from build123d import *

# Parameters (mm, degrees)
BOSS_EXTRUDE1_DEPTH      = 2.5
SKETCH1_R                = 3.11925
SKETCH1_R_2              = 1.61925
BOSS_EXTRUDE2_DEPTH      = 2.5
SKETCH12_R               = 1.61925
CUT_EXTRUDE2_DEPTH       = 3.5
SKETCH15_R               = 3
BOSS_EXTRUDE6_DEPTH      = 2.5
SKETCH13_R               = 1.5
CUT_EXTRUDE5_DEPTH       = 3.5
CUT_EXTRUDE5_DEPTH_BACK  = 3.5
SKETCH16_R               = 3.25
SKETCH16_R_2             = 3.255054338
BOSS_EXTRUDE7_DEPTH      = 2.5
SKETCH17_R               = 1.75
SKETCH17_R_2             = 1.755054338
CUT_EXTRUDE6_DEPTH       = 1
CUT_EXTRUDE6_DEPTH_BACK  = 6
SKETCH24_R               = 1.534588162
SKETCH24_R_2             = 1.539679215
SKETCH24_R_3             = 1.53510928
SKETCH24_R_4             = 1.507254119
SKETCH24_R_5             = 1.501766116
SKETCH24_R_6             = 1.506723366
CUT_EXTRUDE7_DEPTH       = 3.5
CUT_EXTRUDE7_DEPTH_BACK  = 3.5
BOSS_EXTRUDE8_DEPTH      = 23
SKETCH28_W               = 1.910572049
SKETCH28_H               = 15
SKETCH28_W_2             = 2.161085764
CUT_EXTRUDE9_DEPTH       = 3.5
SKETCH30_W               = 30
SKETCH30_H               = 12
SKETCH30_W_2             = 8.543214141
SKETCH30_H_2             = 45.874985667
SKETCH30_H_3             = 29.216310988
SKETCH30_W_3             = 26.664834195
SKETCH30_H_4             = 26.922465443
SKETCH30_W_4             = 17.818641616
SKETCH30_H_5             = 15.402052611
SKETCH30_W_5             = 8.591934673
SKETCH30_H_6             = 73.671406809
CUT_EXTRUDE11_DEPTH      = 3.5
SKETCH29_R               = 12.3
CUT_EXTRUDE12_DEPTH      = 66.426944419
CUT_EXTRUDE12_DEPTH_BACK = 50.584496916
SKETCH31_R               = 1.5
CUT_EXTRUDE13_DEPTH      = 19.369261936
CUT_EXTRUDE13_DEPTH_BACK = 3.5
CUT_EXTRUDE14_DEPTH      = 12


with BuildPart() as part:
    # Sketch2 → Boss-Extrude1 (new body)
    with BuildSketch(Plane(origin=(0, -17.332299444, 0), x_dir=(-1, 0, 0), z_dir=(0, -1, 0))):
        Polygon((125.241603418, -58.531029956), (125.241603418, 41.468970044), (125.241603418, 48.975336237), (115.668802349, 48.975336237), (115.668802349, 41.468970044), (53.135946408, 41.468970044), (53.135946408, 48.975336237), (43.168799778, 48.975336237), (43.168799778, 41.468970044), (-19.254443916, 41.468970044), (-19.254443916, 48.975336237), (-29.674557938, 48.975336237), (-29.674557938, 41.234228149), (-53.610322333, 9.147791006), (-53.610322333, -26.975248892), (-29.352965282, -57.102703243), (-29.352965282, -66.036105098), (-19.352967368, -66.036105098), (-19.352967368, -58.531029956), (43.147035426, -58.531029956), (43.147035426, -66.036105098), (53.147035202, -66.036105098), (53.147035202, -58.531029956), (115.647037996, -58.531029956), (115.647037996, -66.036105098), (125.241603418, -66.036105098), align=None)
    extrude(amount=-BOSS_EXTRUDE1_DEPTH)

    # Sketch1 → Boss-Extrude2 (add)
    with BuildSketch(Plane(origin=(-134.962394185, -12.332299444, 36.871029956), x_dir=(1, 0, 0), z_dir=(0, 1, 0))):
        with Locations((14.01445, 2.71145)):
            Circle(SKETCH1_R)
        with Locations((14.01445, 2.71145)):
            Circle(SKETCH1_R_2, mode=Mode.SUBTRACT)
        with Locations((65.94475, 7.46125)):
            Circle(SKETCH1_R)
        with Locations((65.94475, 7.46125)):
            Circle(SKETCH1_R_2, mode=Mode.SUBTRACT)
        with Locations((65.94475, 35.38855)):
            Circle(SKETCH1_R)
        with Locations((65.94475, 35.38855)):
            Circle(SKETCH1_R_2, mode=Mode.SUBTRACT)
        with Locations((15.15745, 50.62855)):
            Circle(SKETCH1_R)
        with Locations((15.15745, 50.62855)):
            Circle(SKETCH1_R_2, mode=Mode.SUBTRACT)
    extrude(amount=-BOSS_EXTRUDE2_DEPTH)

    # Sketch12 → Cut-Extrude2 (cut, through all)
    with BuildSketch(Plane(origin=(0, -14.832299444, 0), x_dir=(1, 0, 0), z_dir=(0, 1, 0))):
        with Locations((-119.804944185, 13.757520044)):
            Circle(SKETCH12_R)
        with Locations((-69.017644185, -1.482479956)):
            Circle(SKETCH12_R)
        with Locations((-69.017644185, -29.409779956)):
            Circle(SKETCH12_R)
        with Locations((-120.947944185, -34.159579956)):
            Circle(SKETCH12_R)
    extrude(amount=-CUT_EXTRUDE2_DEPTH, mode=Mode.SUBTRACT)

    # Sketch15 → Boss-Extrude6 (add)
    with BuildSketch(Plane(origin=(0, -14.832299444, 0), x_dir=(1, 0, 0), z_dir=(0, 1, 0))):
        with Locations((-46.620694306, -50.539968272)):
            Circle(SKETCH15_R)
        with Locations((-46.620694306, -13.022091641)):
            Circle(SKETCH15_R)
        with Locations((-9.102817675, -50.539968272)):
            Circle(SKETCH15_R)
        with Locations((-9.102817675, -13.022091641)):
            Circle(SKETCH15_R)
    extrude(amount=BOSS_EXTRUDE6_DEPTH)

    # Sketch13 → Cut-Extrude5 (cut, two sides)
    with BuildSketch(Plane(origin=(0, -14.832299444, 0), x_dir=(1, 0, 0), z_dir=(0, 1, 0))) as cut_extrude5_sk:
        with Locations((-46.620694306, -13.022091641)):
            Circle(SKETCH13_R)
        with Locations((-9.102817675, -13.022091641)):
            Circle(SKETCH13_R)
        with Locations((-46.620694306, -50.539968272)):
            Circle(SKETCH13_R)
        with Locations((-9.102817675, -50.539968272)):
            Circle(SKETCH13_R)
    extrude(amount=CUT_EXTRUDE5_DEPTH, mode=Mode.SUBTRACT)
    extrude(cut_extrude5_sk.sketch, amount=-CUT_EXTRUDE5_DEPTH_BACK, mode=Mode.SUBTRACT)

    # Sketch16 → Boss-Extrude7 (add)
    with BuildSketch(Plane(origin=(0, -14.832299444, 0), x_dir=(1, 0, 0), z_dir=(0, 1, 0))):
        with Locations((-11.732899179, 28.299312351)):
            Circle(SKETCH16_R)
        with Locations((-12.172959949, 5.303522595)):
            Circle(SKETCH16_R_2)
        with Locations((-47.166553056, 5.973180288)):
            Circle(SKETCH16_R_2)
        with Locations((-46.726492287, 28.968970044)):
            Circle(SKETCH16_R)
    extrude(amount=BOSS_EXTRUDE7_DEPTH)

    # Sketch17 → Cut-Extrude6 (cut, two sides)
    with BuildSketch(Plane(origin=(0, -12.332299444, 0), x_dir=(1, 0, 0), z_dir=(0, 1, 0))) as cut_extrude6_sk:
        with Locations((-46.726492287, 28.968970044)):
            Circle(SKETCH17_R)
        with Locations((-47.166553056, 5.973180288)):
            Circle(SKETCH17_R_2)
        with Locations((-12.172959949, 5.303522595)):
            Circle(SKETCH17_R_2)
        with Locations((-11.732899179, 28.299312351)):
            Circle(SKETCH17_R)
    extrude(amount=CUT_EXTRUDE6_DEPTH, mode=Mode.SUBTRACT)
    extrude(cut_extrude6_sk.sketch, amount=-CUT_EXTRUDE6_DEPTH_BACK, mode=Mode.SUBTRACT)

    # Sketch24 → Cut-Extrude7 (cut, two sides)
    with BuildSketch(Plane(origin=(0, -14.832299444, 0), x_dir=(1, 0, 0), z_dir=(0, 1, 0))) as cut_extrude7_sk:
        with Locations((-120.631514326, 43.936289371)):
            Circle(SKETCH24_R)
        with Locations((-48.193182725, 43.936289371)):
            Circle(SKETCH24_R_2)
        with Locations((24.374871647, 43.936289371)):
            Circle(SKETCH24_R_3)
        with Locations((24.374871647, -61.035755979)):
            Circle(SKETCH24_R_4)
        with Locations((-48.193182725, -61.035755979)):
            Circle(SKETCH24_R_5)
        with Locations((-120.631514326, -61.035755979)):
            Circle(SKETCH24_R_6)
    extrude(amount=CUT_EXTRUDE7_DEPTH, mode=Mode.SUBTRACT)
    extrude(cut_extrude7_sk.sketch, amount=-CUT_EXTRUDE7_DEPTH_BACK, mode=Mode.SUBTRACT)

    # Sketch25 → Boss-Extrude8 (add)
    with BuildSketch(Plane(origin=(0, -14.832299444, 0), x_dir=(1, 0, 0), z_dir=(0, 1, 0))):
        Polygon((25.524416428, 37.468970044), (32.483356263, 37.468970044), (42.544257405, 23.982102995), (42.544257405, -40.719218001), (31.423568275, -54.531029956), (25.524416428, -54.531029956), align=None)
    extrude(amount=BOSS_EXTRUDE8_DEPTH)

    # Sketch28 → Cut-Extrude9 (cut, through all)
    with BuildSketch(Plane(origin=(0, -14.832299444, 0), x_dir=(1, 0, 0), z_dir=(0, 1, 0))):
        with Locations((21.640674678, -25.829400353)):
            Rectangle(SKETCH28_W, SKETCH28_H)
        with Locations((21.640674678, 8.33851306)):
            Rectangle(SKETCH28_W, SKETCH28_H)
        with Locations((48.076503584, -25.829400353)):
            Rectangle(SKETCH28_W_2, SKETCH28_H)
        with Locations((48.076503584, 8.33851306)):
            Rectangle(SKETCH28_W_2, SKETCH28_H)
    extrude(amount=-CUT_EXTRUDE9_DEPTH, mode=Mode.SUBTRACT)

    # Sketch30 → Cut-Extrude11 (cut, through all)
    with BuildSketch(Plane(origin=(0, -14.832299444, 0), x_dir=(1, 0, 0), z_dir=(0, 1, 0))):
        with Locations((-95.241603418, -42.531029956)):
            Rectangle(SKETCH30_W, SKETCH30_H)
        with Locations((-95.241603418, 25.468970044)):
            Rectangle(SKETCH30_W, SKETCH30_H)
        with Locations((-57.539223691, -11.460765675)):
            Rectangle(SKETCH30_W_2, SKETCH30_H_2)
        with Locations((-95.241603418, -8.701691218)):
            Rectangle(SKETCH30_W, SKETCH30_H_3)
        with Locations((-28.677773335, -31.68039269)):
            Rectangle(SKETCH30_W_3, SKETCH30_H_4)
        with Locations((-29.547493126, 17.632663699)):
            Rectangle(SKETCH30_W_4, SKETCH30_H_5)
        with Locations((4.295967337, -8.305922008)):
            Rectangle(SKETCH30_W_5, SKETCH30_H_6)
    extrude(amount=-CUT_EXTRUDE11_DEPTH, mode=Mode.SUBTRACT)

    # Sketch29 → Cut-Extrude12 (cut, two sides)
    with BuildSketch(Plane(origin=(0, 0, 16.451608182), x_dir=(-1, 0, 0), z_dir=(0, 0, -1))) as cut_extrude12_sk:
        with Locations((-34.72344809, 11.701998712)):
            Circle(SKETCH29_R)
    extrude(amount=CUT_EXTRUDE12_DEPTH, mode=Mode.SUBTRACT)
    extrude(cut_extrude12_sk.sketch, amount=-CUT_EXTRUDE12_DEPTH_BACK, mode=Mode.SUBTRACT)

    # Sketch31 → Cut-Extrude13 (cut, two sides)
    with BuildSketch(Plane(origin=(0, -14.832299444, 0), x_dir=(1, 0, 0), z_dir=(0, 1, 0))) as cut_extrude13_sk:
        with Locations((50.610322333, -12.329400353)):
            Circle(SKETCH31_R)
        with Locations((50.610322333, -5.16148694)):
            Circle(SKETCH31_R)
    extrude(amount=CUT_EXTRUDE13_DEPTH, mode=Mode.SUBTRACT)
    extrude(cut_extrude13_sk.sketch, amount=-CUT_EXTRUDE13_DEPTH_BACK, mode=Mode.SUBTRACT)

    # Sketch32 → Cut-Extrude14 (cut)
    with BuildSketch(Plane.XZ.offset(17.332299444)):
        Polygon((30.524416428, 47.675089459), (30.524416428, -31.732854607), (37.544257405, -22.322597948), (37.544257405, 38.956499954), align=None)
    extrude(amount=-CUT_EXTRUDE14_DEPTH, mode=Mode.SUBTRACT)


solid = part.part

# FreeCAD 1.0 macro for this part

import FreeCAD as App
import Part
import Sketcher
from FreeCAD import Vector

doc = App.newDocument("Part")
params = doc.addObject("Spreadsheet::Sheet", "Params")
for row, (alias, value) in enumerate([
    ("sketch1_width", "10 mm"),
    ("pad1_length", "2.5 mm"),
    ("pad2_length", "2.5 mm"),
    ("sketch4_diameter", "6 mm"),
    ("pad3_length", "2.5 mm"),
    ("sketch5_diameter", "3 mm"),
    ("sketch6_diameter", "6.5 mm"),
    ("pad4_length", "2.5 mm"),
    ("sketch7_diameter", "3.5 mm"),
    ("sketch9_height", "92 mm"),
    ("pad5_length", "23 mm"),
    ("sketch10_height", "15 mm"),
    ("sketch11_width", "30 mm"),
    ("sketch11_height", "12 mm"),
    ("sketch12_diameter", "24.6 mm"),
    ("sketch13_diameter", "3 mm"),
    ("pocket9_length", "12 mm"),
], start=1):
    params.set(f"A{row}", alias)
    params.set(f"B{row}", "=" + value)
    params.setAlias(f"B{row}", alias)

body = doc.addObject("PartDesign::Body", "Body")

sketch1 = body.newObject("Sketcher::SketchObject", "Sketch")
sketch1.AttachmentSupport = (doc.getObject("XZ_Plane"), [""])
sketch1.MapMode = "FlatFace"
sketch1.AttachmentOffset = App.Placement(Vector(0, 0, 17.332299), App.Rotation())
sketch1.addGeometry([
    Part.LineSegment(Vector(-125.241603, -48.975336, 0), Vector(-115.668802, -48.975336, 0)),
    Part.LineSegment(Vector(-115.668802, -48.975336, 0), Vector(-115.668802, -41.46897, 0)),
    Part.LineSegment(Vector(-115.668802, -41.46897, 0), Vector(-53.135946, -41.46897, 0)),
    Part.LineSegment(Vector(-53.135946, -41.46897, 0), Vector(-53.135946, -48.975336, 0)),
    Part.LineSegment(Vector(-53.135946, -48.975336, 0), Vector(-43.1688, -48.975336, 0)),
    Part.LineSegment(Vector(-43.1688, -48.975336, 0), Vector(-43.1688, -41.46897, 0)),
    Part.LineSegment(Vector(-43.1688, -41.46897, 0), Vector(19.254444, -41.46897, 0)),
    Part.LineSegment(Vector(19.254444, -41.46897, 0), Vector(19.254444, -48.975336, 0)),
    Part.LineSegment(Vector(19.254444, -48.975336, 0), Vector(29.674558, -48.975336, 0)),
    Part.LineSegment(Vector(29.674558, -48.975336, 0), Vector(29.674558, -41.234228, 0)),
    Part.LineSegment(Vector(29.674558, -41.234228, 0), Vector(53.610322, -9.147791, 0)),
    Part.LineSegment(Vector(53.610322, -9.147791, 0), Vector(53.610322, 26.975249, 0)),
    Part.LineSegment(Vector(53.610322, 26.975249, 0), Vector(29.352965, 57.102703, 0)),
    Part.LineSegment(Vector(29.352965, 57.102703, 0), Vector(29.352965, 66.036105, 0)),
    Part.LineSegment(Vector(29.352965, 66.036105, 0), Vector(19.352967, 66.036105, 0)),
    Part.LineSegment(Vector(19.352967, 66.036105, 0), Vector(19.352967, 58.53103, 0)),
    Part.LineSegment(Vector(19.352967, 58.53103, 0), Vector(-43.147035, 58.53103, 0)),
    Part.LineSegment(Vector(-43.147035, 58.53103, 0), Vector(-43.147035, 66.036105, 0)),
    Part.LineSegment(Vector(-43.147035, 66.036105, 0), Vector(-53.147035, 66.036105, 0)),
    Part.LineSegment(Vector(-53.147035, 66.036105, 0), Vector(-53.147035, 58.53103, 0)),
    Part.LineSegment(Vector(-53.147035, 58.53103, 0), Vector(-115.647038, 58.53103, 0)),
    Part.LineSegment(Vector(-115.647038, 58.53103, 0), Vector(-115.647038, 66.036105, 0)),
    Part.LineSegment(Vector(-115.647038, 66.036105, 0), Vector(-125.241603, 66.036105, 0)),
    Part.LineSegment(Vector(-125.241603, 66.036105, 0), Vector(-125.241603, -48.975336, 0)),
], False)
sketch1.addConstraint([
    Sketcher.Constraint("Coincident", 0, 2, 1, 1),
    Sketcher.Constraint("Coincident", 1, 2, 2, 1),
    Sketcher.Constraint("Coincident", 2, 2, 3, 1),
    Sketcher.Constraint("Coincident", 3, 2, 4, 1),
    Sketcher.Constraint("Coincident", 4, 2, 5, 1),
    Sketcher.Constraint("Coincident", 5, 2, 6, 1),
    Sketcher.Constraint("Coincident", 6, 2, 7, 1),
    Sketcher.Constraint("Coincident", 7, 2, 8, 1),
    Sketcher.Constraint("Coincident", 8, 2, 9, 1),
    Sketcher.Constraint("Coincident", 9, 2, 10, 1),
    Sketcher.Constraint("Coincident", 10, 2, 11, 1),
    Sketcher.Constraint("Coincident", 11, 2, 12, 1),
    Sketcher.Constraint("Coincident", 12, 2, 13, 1),
    Sketcher.Constraint("Coincident", 13, 2, 14, 1),
    Sketcher.Constraint("Coincident", 14, 2, 15, 1),
    Sketcher.Constraint("Coincident", 15, 2, 16, 1),
    Sketcher.Constraint("Coincident", 16, 2, 17, 1),
    Sketcher.Constraint("Coincident", 17, 2, 18, 1),
    Sketcher.Constraint("Coincident", 18, 2, 19, 1),
    Sketcher.Constraint("Coincident", 19, 2, 20, 1),
    Sketcher.Constraint("Coincident", 20, 2, 21, 1),
    Sketcher.Constraint("Coincident", 21, 2, 22, 1),
    Sketcher.Constraint("Coincident", 22, 2, 23, 1),
    Sketcher.Constraint("Coincident", 23, 2, 0, 1),
    Sketcher.Constraint("Horizontal", 0),
    Sketcher.Constraint("Vertical", 1),
    Sketcher.Constraint("Horizontal", 2),
    Sketcher.Constraint("Vertical", 3),
    Sketcher.Constraint("Horizontal", 4),
    Sketcher.Constraint("Vertical", 5),
    Sketcher.Constraint("Horizontal", 6),
    Sketcher.Constraint("Vertical", 7),
    Sketcher.Constraint("Horizontal", 8),
    Sketcher.Constraint("Vertical", 9),
    Sketcher.Constraint("Vertical", 11),
    Sketcher.Constraint("Vertical", 13),
    Sketcher.Constraint("Horizontal", 14),
    Sketcher.Constraint("Vertical", 15),
    Sketcher.Constraint("Horizontal", 16),
    Sketcher.Constraint("Vertical", 17),
    Sketcher.Constraint("Horizontal", 18),
    Sketcher.Constraint("Vertical", 19),
    Sketcher.Constraint("Horizontal", 20),
    Sketcher.Constraint("Vertical", 21),
    Sketcher.Constraint("Horizontal", 22),
    Sketcher.Constraint("Vertical", 23),
    Sketcher.Constraint("Horizontal", 0, 2, 3, 2),
    Sketcher.Constraint("Horizontal", 2, 2, 5, 2),
    Sketcher.Constraint("Horizontal", 4, 2, 7, 2),
    Sketcher.Constraint("Horizontal", 14, 2, 17, 2),
    Sketcher.Constraint("Horizontal", 16, 2, 19, 2),
    Sketcher.Constraint("Horizontal", 18, 2, 21, 2),
    Sketcher.Constraint("Equal", 14, 18),
    Sketcher.Constraint("Equal", 16, 20),
    Sketcher.Constraint("DistanceX", 18, 2, 18, 1, 10.0),
    Sketcher.Constraint("DistanceY", 5, 2, 16, 2, 100.0),
    Sketcher.Constraint("DistanceX", 16, 2, 12, 2, 72.500001),
    Sketcher.Constraint("DistanceX", 0, 1, 0, 2, 9.572801),
    Sketcher.Constraint("DistanceY", 13, 1, 13, 2, 8.933402),
    Sketcher.Constraint("DistanceY", 9, 1, 9, 2, 7.741108),
    Sketcher.Constraint("DistanceY", 11, 1, 11, 2, 36.12304),
    Sketcher.Constraint("DistanceY", 23, 2, 23, 1, 115.011441),
    Sketcher.Constraint("DistanceX", 4, 2, -1, 1, 43.1688),
    Sketcher.Constraint("Distance", 10, 40.030742),
    Sketcher.Constraint("Distance", 12, 38.679231),
    Sketcher.Constraint("DistanceX", 2, 1, 2, 2, 62.532856),
    Sketcher.Constraint("DistanceX", 4, 1, 4, 2, 9.967147),
    Sketcher.Constraint("DistanceX", 6, 1, 6, 2, 62.423244),
    Sketcher.Constraint("DistanceX", 8, 1, 8, 2, 10.420114),
    Sketcher.Constraint("DistanceX", 22, 2, 22, 1, 9.594565),
    Sketcher.Constraint("DistanceY", 1, 1, 1, 2, 7.506366),
    Sketcher.Constraint("DistanceY", 1, 2, -1, 1, 41.46897),
])
sketch1.setExpression("Constraints[54]", "Params.sketch1_width")
pad1 = body.newObject("PartDesign::Pad", "Pad")
pad1.Profile = sketch1
pad1.setExpression("Length", "Params.pad1_length")
pad1.Reversed = True

sketch2 = body.newObject("Sketcher::SketchObject", "Sketch001")
sketch2.AttachmentSupport = (doc.getObject("XZ_Plane"), [""])
sketch2.MapMode = "FlatFace"
sketch2.AttachmentOffset = App.Placement(Vector(0, 0, 12.332299), App.Rotation())
sketch2.addGeometry([
    Part.Circle(Vector(-120.947944, 34.15958, 0), Vector(0, 0, 1), 3.11925),
    Part.Circle(Vector(-120.947944, 34.15958, 0), Vector(0, 0, 1), 1.61925),
    Part.Circle(Vector(-69.017644, 29.40978, 0), Vector(0, 0, 1), 3.11925),
    Part.Circle(Vector(-69.017644, 29.40978, 0), Vector(0, 0, 1), 1.61925),
    Part.Circle(Vector(-69.017644, 1.48248, 0), Vector(0, 0, 1), 3.11925),
    Part.Circle(Vector(-69.017644, 1.48248, 0), Vector(0, 0, 1), 1.61925),
    Part.Circle(Vector(-119.804944, -13.75752, 0), Vector(0, 0, 1), 3.11925),
    Part.Circle(Vector(-119.804944, -13.75752, 0), Vector(0, 0, 1), 1.61925),
], False)
sketch2.addConstraint([
    Sketcher.Constraint("Coincident", 1, 3, 0, 3),
    Sketcher.Constraint("Coincident", 3, 3, 2, 3),
    Sketcher.Constraint("Coincident", 5, 3, 4, 3),
    Sketcher.Constraint("Coincident", 7, 3, 6, 3),
    Sketcher.Constraint("Equal", 0, 2),
    Sketcher.Constraint("Equal", 1, 3),
    Sketcher.Constraint("Equal", 2, 4),
    Sketcher.Constraint("Equal", 3, 5),
    Sketcher.Constraint("Equal", 4, 6),
    Sketcher.Constraint("Equal", 5, 7),
    Sketcher.Constraint("Vertical", 3, 3, 4, 3),
    Sketcher.Constraint("Diameter", 0, 6.2385),
    Sketcher.Constraint("Diameter", 1, 3.2385),
    Sketcher.Constraint("DistanceY", 6, 3, 4, 3, 15.24),
    Sketcher.Constraint("DistanceX", 0, 3, 6, 3, 1.143),
    Sketcher.Constraint("DistanceX", 0, 3, 2, 3, 51.9303),
    Sketcher.Constraint("DistanceY", 2, 3, 0, 3, 4.7498),
    Sketcher.Constraint("DistanceY", 4, 3, 2, 3, 27.9273),
    Sketcher.Constraint("DistanceY", -1, 1, 0, 3, 34.15958),
    Sketcher.Constraint("DistanceX", 0, 3, -1, 1, 120.947944),
])
pad2 = body.newObject("PartDesign::Pad", "Pad001")
pad2.Profile = sketch2
pad2.setExpression("Length", "Params.pad2_length")

sketch3 = body.newObject("Sketcher::SketchObject", "Sketch002")
sketch3.AttachmentSupport = (doc.getObject("XZ_Plane"), [""])
sketch3.MapMode = "FlatFace"
sketch3.AttachmentOffset = App.Placement(Vector(0, 0, 14.832299), App.Rotation())
sketch3.addGeometry([
    Part.Circle(Vector(-119.804944, -13.75752, 0), Vector(0, 0, 1), 1.61925),
    Part.Circle(Vector(-69.017644, 1.48248, 0), Vector(0, 0, 1), 1.61925),
    Part.Circle(Vector(-69.017644, 29.40978, 0), Vector(0, 0, 1), 1.61925),
    Part.Circle(Vector(-120.947944, 34.15958, 0), Vector(0, 0, 1), 1.61925),
], False)
sketch3.addConstraint([
    Sketcher.Constraint("Equal", 0, 1),
    Sketcher.Constraint("Equal", 1, 2),
    Sketcher.Constraint("Equal", 2, 3),
    Sketcher.Constraint("Vertical", 1, 3, 2, 3),
    Sketcher.Constraint("Diameter", 0, 3.2385),
    Sketcher.Constraint("DistanceY", 0, 3, 1, 3, 15.24),
    Sketcher.Constraint("DistanceX", 3, 3, 0, 3, 1.143),
    Sketcher.Constraint("DistanceX", 0, 3, 1, 3, 50.7873),
    Sketcher.Constraint("DistanceY", 1, 3, 2, 3, 27.9273),
    Sketcher.Constraint("DistanceY", 0, 3, 3, 3, 47.9171),
    Sketcher.Constraint("DistanceY", 0, 3, -1, 1, 13.75752),
    Sketcher.Constraint("DistanceX", 0, 3, -1, 1, 119.804944),
])
pocket1 = body.newObject("PartDesign::Pocket", "Pocket")
pocket1.Profile = sketch3
pocket1.Type = "ThroughAll"
pocket1.Reversed = True

sketch4 = body.newObject("Sketcher::SketchObject", "Sketch003")
sketch4.AttachmentSupport = (doc.getObject("XZ_Plane"), [""])
sketch4.MapMode = "FlatFace"
sketch4.AttachmentOffset = App.Placement(Vector(0, 0, 14.832299), App.Rotation())
sketch4.addGeometry([
    Part.Circle(Vector(-46.620694, 50.539968, 0), Vector(0, 0, 1), 3),
    Part.Circle(Vector(-46.620694, 13.022092, 0), Vector(0, 0, 1), 3),
    Part.Circle(Vector(-9.102818, 50.539968, 0), Vector(0, 0, 1), 3),
    Part.Circle(Vector(-9.102818, 13.022092, 0), Vector(0, 0, 1), 3),
], False)
sketch4.addConstraint([
    Sketcher.Constraint("Equal", 0, 1),
    Sketcher.Constraint("Equal", 1, 2),
    Sketcher.Constraint("Equal", 2, 3),
    Sketcher.Constraint("Horizontal", 0, 3, 2, 3),
    Sketcher.Constraint("Horizontal", 1, 3, 3, 3),
    Sketcher.Constraint("Vertical", 0, 3, 1, 3),
    Sketcher.Constraint("Vertical", 2, 3, 3, 3),
    Sketcher.Constraint("Diameter", 0, 6.0),
    Sketcher.Constraint("DistanceY", -1, 1, 0, 3, 50.539968),
    Sketcher.Constraint("DistanceY", -1, 1, 1, 3, 13.022092),
    Sketcher.Constraint("DistanceX", 0, 3, -1, 1, 46.620694),
    Sketcher.Constraint("DistanceX", 2, 3, -1, 1, 9.102818),
])
sketch4.setExpression("Constraints[7]", "Params.sketch4_diameter")
pad3 = body.newObject("PartDesign::Pad", "Pad002")
pad3.Profile = sketch4
pad3.setExpression("Length", "Params.pad3_length")
pad3.Reversed = True

sketch5 = body.newObject("Sketcher::SketchObject", "Sketch004")
sketch5.AttachmentSupport = (doc.getObject("XZ_Plane"), [""])
sketch5.MapMode = "FlatFace"
sketch5.AttachmentOffset = App.Placement(Vector(0, 0, 14.832299), App.Rotation())
sketch5.addGeometry([
    Part.Circle(Vector(-46.620694, 13.022092, 0), Vector(0, 0, 1), 1.5),
    Part.Circle(Vector(-9.102818, 13.022092, 0), Vector(0, 0, 1), 1.5),
    Part.Circle(Vector(-46.620694, 50.539968, 0), Vector(0, 0, 1), 1.5),
    Part.Circle(Vector(-9.102818, 50.539968, 0), Vector(0, 0, 1), 1.5),
], False)
sketch5.addConstraint([
    Sketcher.Constraint("Equal", 0, 1),
    Sketcher.Constraint("Equal", 1, 2),
    Sketcher.Constraint("Equal", 2, 3),
    Sketcher.Constraint("Horizontal", 0, 3, 1, 3),
    Sketcher.Constraint("Horizontal", 2, 3, 3, 3),
    Sketcher.Constraint("Vertical", 0, 3, 2, 3),
    Sketcher.Constraint("Vertical", 1, 3, 3, 3),
    Sketcher.Constraint("Diameter", 0, 3.0),
    Sketcher.Constraint("DistanceY", -1, 1, 0, 3, 13.022092),
    Sketcher.Constraint("DistanceY", -1, 1, 2, 3, 50.539968),
    Sketcher.Constraint("DistanceX", 0, 3, -1, 1, 46.620694),
    Sketcher.Constraint("DistanceX", 1, 3, -1, 1, 9.102818),
])
sketch5.setExpression("Constraints[7]", "Params.sketch5_diameter")
pocket2 = body.newObject("PartDesign::Pocket", "Pocket001")
pocket2.Profile = sketch5
pocket2.Type = "ThroughAll"
pocket2.Midplane = True

sketch6 = body.newObject("Sketcher::SketchObject", "Sketch005")
sketch6.AttachmentSupport = (doc.getObject("XZ_Plane"), [""])
sketch6.MapMode = "FlatFace"
sketch6.AttachmentOffset = App.Placement(Vector(0, 0, 14.832299), App.Rotation())
sketch6.addGeometry([
    Part.Circle(Vector(-11.732899, -28.299312, 0), Vector(0, 0, 1), 3.25),
    Part.Circle(Vector(-12.17296, -5.303523, 0), Vector(0, 0, 1), 3.255054),
    Part.Circle(Vector(-47.166553, -5.97318, 0), Vector(0, 0, 1), 3.255054),
    Part.Circle(Vector(-46.726492, -28.96897, 0), Vector(0, 0, 1), 3.25),
], False)
sketch6.addConstraint([
    Sketcher.Constraint("Equal", 1, 2),
    Sketcher.Constraint("Equal", 0, 3),
    Sketcher.Constraint("Diameter", 0, 6.5),
    Sketcher.Constraint("Diameter", 1, 6.510109),
    Sketcher.Constraint("DistanceX", 0, 3, -1, 1, 11.732899),
    Sketcher.Constraint("DistanceX", 1, 3, -1, 1, 12.17296),
    Sketcher.Constraint("DistanceY", 2, 3, -1, 1, 5.97318),
    Sketcher.Constraint("DistanceY", 3, 3, -1, 1, 28.96897),
    Sketcher.Constraint("DistanceY", 0, 3, 1, 3, 22.99579),
    Sketcher.Constraint("DistanceX", 2, 3, 3, 3, 0.440061),
    Sketcher.Constraint("DistanceY", 0, 3, -1, 1, 28.299312),
    Sketcher.Constraint("DistanceX", 2, 3, -1, 1, 47.166553),
])
sketch6.setExpression("Constraints[2]", "Params.sketch6_diameter")
pad4 = body.newObject("PartDesign::Pad", "Pad003")
pad4.Profile = sketch6
pad4.setExpression("Length", "Params.pad4_length")
pad4.Reversed = True

sketch7 = body.newObject("Sketcher::SketchObject", "Sketch006")
sketch7.AttachmentSupport = (doc.getObject("XZ_Plane"), [""])
sketch7.MapMode = "FlatFace"
sketch7.AttachmentOffset = App.Placement(Vector(0, 0, 12.332299), App.Rotation())
sketch7.addGeometry([
    Part.Circle(Vector(-46.726492, -28.96897, 0), Vector(0, 0, 1), 1.75),
    Part.Circle(Vector(-47.166553, -5.97318, 0), Vector(0, 0, 1), 1.755054),
    Part.Circle(Vector(-12.17296, -5.303523, 0), Vector(0, 0, 1), 1.755054),
    Part.Circle(Vector(-11.732899, -28.299312, 0), Vector(0, 0, 1), 1.75),
], False)
sketch7.addConstraint([
    Sketcher.Constraint("Equal", 1, 2),
    Sketcher.Constraint("Equal", 0, 3),
    Sketcher.Constraint("Diameter", 0, 3.5),
    Sketcher.Constraint("Diameter", 1, 3.510109),
    Sketcher.Constraint("DistanceX", 3, 3, -1, 1, 11.732899),
    Sketcher.Constraint("DistanceY", 0, 3, -1, 1, 28.96897),
    Sketcher.Constraint("DistanceY", 1, 3, -1, 1, 5.97318),
    Sketcher.Constraint("DistanceX", 2, 3, -1, 1, 12.17296),
    Sketcher.Constraint("DistanceX", 1, 3, 0, 3, 0.440061),
    Sketcher.Constraint("DistanceY", 3, 3, 2, 3, 22.99579),
    Sketcher.Constraint("DistanceX", 0, 3, -1, 1, 46.726492),
    Sketcher.Constraint("DistanceY", 2, 3, -1, 1, 5.303523),
])
sketch7.setExpression("Constraints[2]", "Params.sketch7_diameter")
pocket3 = body.newObject("PartDesign::Pocket", "Pocket002")
pocket3.Profile = sketch7
pocket3.Type = "ThroughAll"
pocket3.Midplane = True

sketch8 = body.newObject("Sketcher::SketchObject", "Sketch007")
sketch8.AttachmentSupport = (doc.getObject("XZ_Plane"), [""])
sketch8.MapMode = "FlatFace"
sketch8.AttachmentOffset = App.Placement(Vector(0, 0, 14.832299), App.Rotation())
sketch8.addGeometry([
    Part.Circle(Vector(-120.631514, -43.936289, 0), Vector(0, 0, 1), 1.534588),
    Part.Circle(Vector(-48.193183, -43.936289, 0), Vector(0, 0, 1), 1.539679),
    Part.Circle(Vector(24.374872, -43.936289, 0), Vector(0, 0, 1), 1.535109),
    Part.Circle(Vector(24.374872, 61.035756, 0), Vector(0, 0, 1), 1.507254),
    Part.Circle(Vector(-48.193183, 61.035756, 0), Vector(0, 0, 1), 1.501766),
    Part.Circle(Vector(-120.631514, 61.035756, 0), Vector(0, 0, 1), 1.506723),
], False)
sketch8.addConstraint([
    Sketcher.Constraint("Horizontal", 0, 3, 1, 3),
    Sketcher.Constraint("Horizontal", 1, 3, 2, 3),
    Sketcher.Constraint("Horizontal", 3, 3, 4, 3),
    Sketcher.Constraint("Horizontal", 4, 3, 5, 3),
    Sketcher.Constraint("Vertical", 2, 3, 3, 3),
    Sketcher.Constraint("Vertical", 1, 3, 4, 3),
    Sketcher.Constraint("Vertical", 0, 3, 5, 3),
    Sketcher.Constraint("Diameter", 1, 3.079358),
    Sketcher.Constraint("Diameter", 2, 3.070219),
    Sketcher.Constraint("Diameter", 3, 3.014508),
    Sketcher.Constraint("Diameter", 0, 3.069176),
    Sketcher.Constraint("Diameter", 4, 3.003532),
    Sketcher.Constraint("Diameter", 5, 3.013447),
    Sketcher.Constraint("DistanceY", 0, 3, -1, 1, 43.936289),
    Sketcher.Constraint("DistanceX", -1, 1, 2, 3, 24.374872),
    Sketcher.Constraint("DistanceX", 0, 3, 1, 3, 72.438332),
    Sketcher.Constraint("DistanceX", 0, 3, -1, 1, 120.631514),
    Sketcher.Constraint("DistanceY", -1, 1, 3, 3, 61.035756),
])
pocket4 = body.newObject("PartDesign::Pocket", "Pocket003")
pocket4.Profile = sketch8
pocket4.Type = "ThroughAll"
pocket4.Midplane = True

sketch9 = body.newObject("Sketcher::SketchObject", "Sketch008")
sketch9.AttachmentSupport = (doc.getObject("XZ_Plane"), [""])
sketch9.MapMode = "FlatFace"
sketch9.AttachmentOffset = App.Placement(Vector(0, 0, 14.832299), App.Rotation())
sketch9.addGeometry([
    Part.LineSegment(Vector(32.483356, -37.46897, 0), Vector(25.524416, -37.46897, 0)),
    Part.LineSegment(Vector(25.524416, -37.46897, 0), Vector(25.524416, 54.53103, 0)),
    Part.LineSegment(Vector(25.524416, 54.53103, 0), Vector(31.423568, 54.53103, 0)),
    Part.LineSegment(Vector(31.423568, 54.53103, 0), Vector(42.544257, 40.719218, 0)),
    Part.LineSegment(Vector(42.544257, 40.719218, 0), Vector(42.544257, -23.982103, 0)),
    Part.LineSegment(Vector(42.544257, -23.982103, 0), Vector(32.483356, -37.46897, 0)),
], False)
sketch9.addConstraint([
    Sketcher.Constraint("Coincident", 0, 2, 1, 1),
    Sketcher.Constraint("Coincident", 1, 2, 2, 1),
    Sketcher.Constraint("Coincident", 2, 2, 3, 1),
    Sketcher.Constraint("Coincident", 3, 2, 4, 1),
    Sketcher.Constraint("Coincident", 4, 2, 5, 1),
    Sketcher.Constraint("Coincident", 5, 2, 0, 1),
    Sketcher.Constraint("Horizontal", 0),
    Sketcher.Constraint("Vertical", 1),
    Sketcher.Constraint("Horizontal", 2),
    Sketcher.Constraint("Vertical", 4),
    Sketcher.Constraint("DistanceY", 1, 1, 1, 2, 92.0),
    Sketcher.Constraint("DistanceX", 0, 2, 0, 1, 6.95894),
    Sketcher.Constraint("DistanceX", 2, 1, 2, 2, 5.899152),
    Sketcher.Constraint("DistanceY", 4, 2, 4, 1, 64.701321),
    Sketcher.Constraint("DistanceX", 5, 2, 4, 2, 10.060901),
    Sketcher.Constraint("Distance", 3, 17.73234),
    Sketcher.Constraint("DistanceY", 0, 2, -1, 1, 37.46897),
    Sketcher.Constraint("DistanceX", -1, 1, 2, 2, 31.423568),
])
sketch9.setExpression("Constraints[10]", "Params.sketch9_height")
pad5 = body.newObject("PartDesign::Pad", "Pad004")
pad5.Profile = sketch9
pad5.setExpression("Length", "Params.pad5_length")
pad5.Reversed = True

sketch10 = body.newObject("Sketcher::SketchObject", "Sketch009")
sketch10.AttachmentSupport = (doc.getObject("XZ_Plane"), [""])
sketch10.MapMode = "FlatFace"
sketch10.AttachmentOffset = App.Placement(Vector(0, 0, 14.832299), App.Rotation())
sketch10.addGeometry([
    Part.LineSegment(Vector(20.685389, 18.3294, 0), Vector(20.685389, 33.3294, 0)),
    Part.LineSegment(Vector(20.685389, 33.3294, 0), Vector(22.595961, 33.3294, 0)),
    Part.LineSegment(Vector(22.595961, 33.3294, 0), Vector(22.595961, 18.3294, 0)),
    Part.LineSegment(Vector(22.595961, 18.3294, 0), Vector(20.685389, 18.3294, 0)),
    Part.LineSegment(Vector(20.685389, -15.838513, 0), Vector(20.685389, -0.838513, 0)),
    Part.LineSegment(Vector(20.685389, -0.838513, 0), Vector(22.595961, -0.838513, 0)),
    Part.LineSegment(Vector(22.595961, -0.838513, 0), Vector(22.595961, -15.838513, 0)),
    Part.LineSegment(Vector(22.595961, -15.838513, 0), Vector(20.685389, -15.838513, 0)),
    Part.LineSegment(Vector(46.995961, 18.3294, 0), Vector(46.995961, 33.3294, 0)),
    Part.LineSegment(Vector(46.995961, 33.3294, 0), Vector(49.157046, 33.3294, 0)),
    Part.LineSegment(Vector(49.157046, 33.3294, 0), Vector(49.157046, 18.3294, 0)),
    Part.LineSegment(Vector(49.157046, 18.3294, 0), Vector(46.995961, 18.3294, 0)),
    Part.LineSegment(Vector(46.995961, -15.838513, 0), Vector(46.995961, -0.838513, 0)),
    Part.LineSegment(Vector(46.995961, -0.838513, 0), Vector(49.157046, -0.838513, 0)),
    Part.LineSegment(Vector(49.157046, -0.838513, 0), Vector(49.157046, -15.838513, 0)),
    Part.LineSegment(Vector(49.157046, -15.838513, 0), Vector(46.995961, -15.838513, 0)),
], False)
sketch10.addConstraint([
    Sketcher.Constraint("Coincident", 0, 2, 1, 1),
    Sketcher.Constraint("Coincident", 1, 2, 2, 1),
    Sketcher.Constraint("Coincident", 2, 2, 3, 1),
    Sketcher.Constraint("Coincident", 3, 2, 0, 1),
    Sketcher.Constraint("Coincident", 4, 2, 5, 1),
    Sketcher.Constraint("Coincident", 5, 2, 6, 1),
    Sketcher.Constraint("Coincident", 6, 2, 7, 1),
    Sketcher.Constraint("Coincident", 7, 2, 4, 1),
    Sketcher.Constraint("Coincident", 8, 2, 9, 1),
    Sketcher.Constraint("Coincident", 9, 2, 10, 1),
    Sketcher.Constraint("Coincident", 10, 2, 11, 1),
    Sketcher.Constraint("Coincident", 11, 2, 8, 1),
    Sketcher.Constraint("Coincident", 12, 2, 13, 1),
    Sketcher.Constraint("Coincident", 13, 2, 14, 1),
    Sketcher.Constraint("Coincident", 14, 2, 15, 1),
    Sketcher.Constraint("Coincident", 15, 2, 12, 1),
    Sketcher.Constraint("Vertical", 0),
    Sketcher.Constraint("Horizontal", 1),
    Sketcher.Constraint("Vertical", 2),
    Sketcher.Constraint("Horizontal", 3),
    Sketcher.Constraint("Vertical", 4),
    Sketcher.Constraint("Horizontal", 5),
    Sketcher.Constraint("Vertical", 6),
    Sketcher.Constraint("Horizontal", 7),
    Sketcher.Constraint("Vertical", 8),
    Sketcher.Constraint("Horizontal", 9),
    Sketcher.Constraint("Vertical", 10),
    Sketcher.Constraint("Horizontal", 11),
    Sketcher.Constraint("Vertical", 12),
    Sketcher.Constraint("Horizontal", 13),
    Sketcher.Constraint("Vertical", 14),
    Sketcher.Constraint("Horizontal", 15),
    Sketcher.Constraint("Horizontal", 1, 2, 8, 2),
    Sketcher.Constraint("Horizontal", 3, 2, 10, 2),
    Sketcher.Constraint("Horizontal", 5, 2, 12, 2),
    Sketcher.Constraint("Horizontal", 7, 2, 14, 2),
    Sketcher.Constraint("Vertical", 3, 2, 4, 2),
    Sketcher.Constraint("Vertical", 2, 2, 5, 2),
    Sketcher.Constraint("Vertical", 11, 2, 12, 2),
    Sketcher.Constraint("Vertical", 10, 2, 13, 2),
    Sketcher.Constraint("Equal", 2, 4),
    Sketcher.Constraint("DistanceY", 0, 1, 0, 2, 15.0),
    Sketcher.Constraint("DistanceX", 1, 2, 8, 2, 24.4),
    Sketcher.Constraint("DistanceY", -1, 1, 0, 2, 33.3294),
    Sketcher.Constraint("DistanceX", 1, 1, 1, 2, 1.910572),
    Sketcher.Constraint("DistanceX", 9, 1, 9, 2, 2.161086),
    Sketcher.Constraint("DistanceX", -1, 1, 0, 2, 20.685389),
    Sketcher.Constraint("DistanceY", 4, 2, -1, 1, 0.838513),
])
sketch10.setExpression("Constraints[41]", "Params.sketch10_height")
pocket5 = body.newObject("PartDesign::Pocket", "Pocket004")
pocket5.Profile = sketch10
pocket5.Type = "ThroughAll"
pocket5.Reversed = True

sketch11 = body.newObject("Sketcher::SketchObject", "Sketch010")
sketch11.AttachmentSupport = (doc.getObject("XZ_Plane"), [""])
sketch11.MapMode = "FlatFace"
sketch11.AttachmentOffset = App.Placement(Vector(0, 0, 14.832299), App.Rotation())
sketch11.addGeometry([
    Part.LineSegment(Vector(-110.241603, 36.53103, 0), Vector(-110.241603, 48.53103, 0)),
    Part.LineSegment(Vector(-110.241603, 48.53103, 0), Vector(-80.241603, 48.53103, 0)),
    Part.LineSegment(Vector(-80.241603, 48.53103, 0), Vector(-80.241603, 36.53103, 0)),
    Part.LineSegment(Vector(-80.241603, 36.53103, 0), Vector(-110.241603, 36.53103, 0)),
    Part.LineSegment(Vector(-110.241603, -31.46897, 0), Vector(-110.241603, -19.46897, 0)),
    Part.LineSegment(Vector(-110.241603, -19.46897, 0), Vector(-80.241603, -19.46897, 0)),
    Part.LineSegment(Vector(-80.241603, -19.46897, 0), Vector(-80.241603, -31.46897, 0)),
    Part.LineSegment(Vector(-80.241603, -31.46897, 0), Vector(-110.241603, -31.46897, 0)),
    Part.LineSegment(Vector(-61.810831, -11.476727, 0), Vector(-61.810831, 34.398259, 0)),
    Part.LineSegment(Vector(-61.810831, 34.398259, 0), Vector(-53.267617, 34.398259, 0)),
    Part.LineSegment(Vector(-53.267617, 34.398259, 0), Vector(-53.267617, -11.476727, 0)),
    Part.LineSegment(Vector(-53.267617, -11.476727, 0), Vector(-61.810831, -11.476727, 0)),
    Part.LineSegment(Vector(-110.241603, -5.906464, 0), Vector(-110.241603, 23.309847, 0)),
    Part.LineSegment(Vector(-110.241603, 23.309847, 0), Vector(-80.241603, 23.309847, 0)),
    Part.LineSegment(Vector(-80.241603, 23.309847, 0), Vector(-80.241603, -5.906464, 0)),
    Part.LineSegment(Vector(-80.241603, -5.906464, 0), Vector(-110.241603, -5.906464, 0)),
    Part.LineSegment(Vector(-42.01019, 18.21916, 0), Vector(-42.01019, 45.141625, 0)),
    Part.LineSegment(Vector(-42.01019, 45.141625, 0), Vector(-15.345356, 45.141625, 0)),
    Part.LineSegment(Vector(-15.345356, 45.141625, 0), Vector(-15.345356, 18.21916, 0)),
    Part.LineSegment(Vector(-15.345356, 18.21916, 0), Vector(-42.01019, 18.21916, 0)),
    Part.LineSegment(Vector(-38.456814, -25.33369, 0), Vector(-38.456814, -9.931637, 0)),
    Part.LineSegment(Vector(-38.456814, -9.931637, 0), Vector(-20.638172, -9.931637, 0)),
    Part.LineSegment(Vector(-20.638172, -9.931637, 0), Vector(-20.638172, -25.33369, 0)),
    Part.LineSegment(Vector(-20.638172, -25.33369, 0), Vector(-38.456814, -25.33369, 0)),
    Part.LineSegment(Vector(0, -28.529781, 0), Vector(0, 45.141625, 0)),
    Part.LineSegment(Vector(0, 45.141625, 0), Vector(8.591935, 45.141625, 0)),
    Part.LineSegment(Vector(8.591935, 45.141625, 0), Vector(8.591935, -28.529781, 0)),
    Part.LineSegment(Vector(8.591935, -28.529781, 0), Vector(0, -28.529781, 0)),
], False)
sketch11.addConstraint([
    Sketcher.Constraint("Coincident", 0, 2, 1, 1),
    Sketcher.Constraint("Coincident", 1, 2, 2, 1),
    Sketcher.Constraint("Coincident", 2, 2, 3, 1),
    Sketcher.Constraint("Coincident", 3, 2, 0, 1),
    Sketcher.Constraint("Coincident", 4, 2, 5, 1),
    Sketcher.Constraint("Coincident", 5, 2, 6, 1),
    Sketcher.Constraint("Coincident", 6, 2, 7, 1),
    Sketcher.Constraint("Coincident", 7, 2, 4, 1),
    Sketcher.Constraint("Coincident", 8, 2, 9, 1),
    Sketcher.Constraint("Coincident", 9, 2, 10, 1),
    Sketcher.Constraint("Coincident", 10, 2, 11, 1),
    Sketcher.Constraint("Coincident", 11, 2, 8, 1),
    Sketcher.Constraint("Coincident", 12, 2, 13, 1),
    Sketcher.Constraint("Coincident", 13, 2, 14, 1),
    Sketcher.Constraint("Coincident", 14, 2, 15, 1),
    Sketcher.Constraint("Coincident", 15, 2, 12, 1),
    Sketcher.Constraint("Coincident", 16, 2, 17, 1),
    Sketcher.Constraint("Coincident", 17, 2, 18, 1),
    Sketcher.Constraint("Coincident", 18, 2, 19, 1),
    Sketcher.Constraint("Coincident", 19, 2, 16, 1),
    Sketcher.Constraint("Coincident", 20, 2, 21, 1),
    Sketcher.Constraint("Coincident", 21, 2, 22, 1),
    Sketcher.Constraint("Coincident", 22, 2, 23, 1),
    Sketcher.Constraint("Coincident", 23, 2, 20, 1),
    Sketcher.Constraint("Coincident", 24, 2, 25, 1),
    Sketcher.Constraint("Coincident", 25, 2, 26, 1),
    Sketcher.Constraint("Coincident", 26, 2, 27, 1),
    Sketcher.Constraint("Coincident", 27, 2, 24, 1),
    Sketcher.Constraint("Vertical", 0),
    Sketcher.Constraint("Horizontal", 1),
    Sketcher.Constraint("Vertical", 2),
    Sketcher.Constraint("Horizontal", 3),
    Sketcher.Constraint("Vertical", 4),
    Sketcher.Constraint("Horizontal", 5),
    Sketcher.Constraint("Vertical", 6),
    Sketcher.Constraint("Horizontal", 7),
    Sketcher.Constraint("Vertical", 8),
    Sketcher.Constraint("Horizontal", 9),
    Sketcher.Constraint("Vertical", 10),
    Sketcher.Constraint("Horizontal", 11),
    Sketcher.Constraint("Vertical", 12),
    Sketcher.Constraint("Horizontal", 13),
    Sketcher.Constraint("Vertical", 14),
    Sketcher.Constraint("Horizontal", 15),
    Sketcher.Constraint("Vertical", 16),
    Sketcher.Constraint("Horizontal", 17),
    Sketcher.Constraint("Vertical", 18),
    Sketcher.Constraint("Horizontal", 19),
    Sketcher.Constraint("Vertical", 20),
    Sketcher.Constraint("Horizontal", 21),
    Sketcher.Constraint("Vertical", 22),
    Sketcher.Constraint("Horizontal", 23),
    Sketcher.Constraint("Vertical", 24),
    Sketcher.Constraint("Horizontal", 25),
    Sketcher.Constraint("Vertical", 26),
    Sketcher.Constraint("Horizontal", 27),
    Sketcher.Constraint("PointOnObject", 24, 2, -2),
    Sketcher.Constraint("Horizontal", 17, 2, 24, 2),
    Sketcher.Constraint("Vertical", 3, 2, 4, 2),
    Sketcher.Constraint("Vertical", 2, 2, 5, 2),
    Sketcher.Constraint("Vertical", 7, 2, 12, 2),
    Sketcher.Constraint("Vertical", 6, 2, 13, 2),
    Sketcher.Constraint("Equal", 2, 4),
    Sketcher.Constraint("DistanceX", 1, 1, 1, 2, 30.0),
    Sketcher.Constraint("DistanceY", 0, 1, 0, 2, 12.0),
    Sketcher.Constraint("DistanceY", 4, 2, 3, 2, 56.0),
    Sketcher.Constraint("DistanceX", 21, 1, 21, 2, 17.818642),
    Sketcher.Constraint("DistanceY", 12, 1, 12, 2, 29.216311),
    Sketcher.Constraint("DistanceY", 18, 2, 9, 2, 16.179099),
    Sketcher.Constraint("DistanceX", 9, 1, 9, 2, 8.543214),
    Sketcher.Constraint("DistanceX", 17, 1, 17, 2, 26.664834),
    Sketcher.Constraint("DistanceX", 25, 1, 25, 2, 8.591935),
    Sketcher.Constraint("DistanceY", 8, 1, 8, 2, 45.874986),
    Sketcher.Constraint("DistanceY", 16, 1, 16, 2, 26.922465),
    Sketcher.Constraint("DistanceY", 20, 1, 20, 2, 15.402053),
    Sketcher.Constraint("DistanceY", 24, 1, 24, 2, 73.671407),
    Sketcher.Constraint("DistanceY", -1, 1, 0, 2, 48.53103),
    Sketcher.Constraint("DistanceX", 8, 2, -1, 1, 61.810831),
    Sketcher.Constraint("DistanceY", -1, 1, 8, 2, 34.398259),
    Sketcher.Constraint("DistanceX", 16, 2, -1, 1, 42.01019),
    Sketcher.Constraint("DistanceY", 22, 2, -1, 1, 25.33369),
    Sketcher.Constraint("DistanceY", 13, 2, 8, 2, 11.088412),
    Sketcher.Constraint("DistanceX", 14, 2, 20, 2, 41.784789),
    Sketcher.Constraint("DistanceX", 19, 2, 21, 2, 21.372018),
])
sketch11.setExpression("Constraints[63]", "Params.sketch11_width")
sketch11.setExpression("Constraints[64]", "Params.sketch11_height")
pocket6 = body.newObject("PartDesign::Pocket", "Pocket005")
pocket6.Profile = sketch11
pocket6.Type = "ThroughAll"
pocket6.Reversed = True

sketch12 = body.newObject("Sketcher::SketchObject", "Sketch011")
sketch12.AttachmentSupport = (doc.getObject("XY_Plane"), [""])
sketch12.MapMode = "FlatFace"
sketch12.AttachmentOffset = App.Placement(Vector(0, 0, 16.451608), App.Rotation())
sketch12.addGeometry(Part.Circle(Vector(34.723448, 11.701999, 0), Vector(0, 0, 1), 12.3), False)
sketch12.addConstraint([
    Sketcher.Constraint("Diameter", 0, 24.6),
    Sketcher.Constraint("DistanceY", -1, 1, 0, 3, 11.701999),
    Sketcher.Constraint("DistanceX", -1, 1, 0, 3, 34.723448),
])
sketch12.setExpression("Constraints[0]", "Params.sketch12_diameter")
pocket7 = body.newObject("PartDesign::Pocket", "Pocket006")
pocket7.Profile = sketch12
pocket7.Type = "ThroughAll"
pocket7.Midplane = True

sketch13 = body.newObject("Sketcher::SketchObject", "Sketch012")
sketch13.AttachmentSupport = (doc.getObject("XZ_Plane"), [""])
sketch13.MapMode = "FlatFace"
sketch13.AttachmentOffset = App.Placement(Vector(0, 0, 14.832299), App.Rotation())
sketch13.addGeometry([
    Part.Circle(Vector(50.610322, 12.3294, 0), Vector(0, 0, 1), 1.5),
    Part.Circle(Vector(50.610322, 5.161487, 0), Vector(0, 0, 1), 1.5),
], False)
sketch13.addConstraint([
    Sketcher.Constraint("Equal", 0, 1),
    Sketcher.Constraint("Vertical", 0, 3, 1, 3),
    Sketcher.Constraint("Diameter", 0, 3.0),
    Sketcher.Constraint("DistanceY", -1, 1, 0, 3, 12.3294),
    Sketcher.Constraint("DistanceX", -1, 1, 0, 3, 50.610322),
    Sketcher.Constraint("DistanceY", -1, 1, 1, 3, 5.161487),
])
sketch13.setExpression("Constraints[2]", "Params.sketch13_diameter")
pocket8 = body.newObject("PartDesign::Pocket", "Pocket007")
pocket8.Profile = sketch13
pocket8.Type = "ThroughAll"
pocket8.Midplane = True

sketch14 = body.newObject("Sketcher::SketchObject", "Sketch013")
sketch14.AttachmentSupport = (doc.getObject("XZ_Plane"), [""])
sketch14.MapMode = "FlatFace"
sketch14.AttachmentOffset = App.Placement(Vector(0, 0, 17.332299), App.Rotation())
sketch14.addGeometry([
    Part.LineSegment(Vector(30.524416, 47.675089, 0), Vector(30.524416, -31.732855, 0)),
    Part.LineSegment(Vector(30.524416, -31.732855, 0), Vector(37.544257, -22.322598, 0)),
    Part.LineSegment(Vector(37.544257, -22.322598, 0), Vector(37.544257, 38.9565, 0)),
    Part.LineSegment(Vector(37.544257, 38.9565, 0), Vector(30.524416, 47.675089, 0)),
], False)
sketch14.addConstraint([
    Sketcher.Constraint("Coincident", 0, 2, 1, 1),
    Sketcher.Constraint("Coincident", 1, 2, 2, 1),
    Sketcher.Constraint("Coincident", 2, 2, 3, 1),
    Sketcher.Constraint("Coincident", 3, 2, 0, 1),
    Sketcher.Constraint("Vertical", 0),
    Sketcher.Constraint("Vertical", 2),
    Sketcher.Constraint("DistanceY", -1, 1, 2, 2, 38.9565),
    Sketcher.Constraint("Distance", 1, 11.740149),
    Sketcher.Constraint("Distance", 3, 11.19339),
    Sketcher.Constraint("DistanceY", 0, 2, 0, 1, 79.407944),
    Sketcher.Constraint("DistanceY", 2, 1, 2, 2, 61.279098),
    Sketcher.Constraint("DistanceX", -1, 1, 0, 2, 30.524416),
])
pocket9 = body.newObject("PartDesign::Pocket", "Pocket008")
pocket9.Profile = sketch14
pocket9.setExpression("Length", "Params.pocket9_length")

doc.recompute()
